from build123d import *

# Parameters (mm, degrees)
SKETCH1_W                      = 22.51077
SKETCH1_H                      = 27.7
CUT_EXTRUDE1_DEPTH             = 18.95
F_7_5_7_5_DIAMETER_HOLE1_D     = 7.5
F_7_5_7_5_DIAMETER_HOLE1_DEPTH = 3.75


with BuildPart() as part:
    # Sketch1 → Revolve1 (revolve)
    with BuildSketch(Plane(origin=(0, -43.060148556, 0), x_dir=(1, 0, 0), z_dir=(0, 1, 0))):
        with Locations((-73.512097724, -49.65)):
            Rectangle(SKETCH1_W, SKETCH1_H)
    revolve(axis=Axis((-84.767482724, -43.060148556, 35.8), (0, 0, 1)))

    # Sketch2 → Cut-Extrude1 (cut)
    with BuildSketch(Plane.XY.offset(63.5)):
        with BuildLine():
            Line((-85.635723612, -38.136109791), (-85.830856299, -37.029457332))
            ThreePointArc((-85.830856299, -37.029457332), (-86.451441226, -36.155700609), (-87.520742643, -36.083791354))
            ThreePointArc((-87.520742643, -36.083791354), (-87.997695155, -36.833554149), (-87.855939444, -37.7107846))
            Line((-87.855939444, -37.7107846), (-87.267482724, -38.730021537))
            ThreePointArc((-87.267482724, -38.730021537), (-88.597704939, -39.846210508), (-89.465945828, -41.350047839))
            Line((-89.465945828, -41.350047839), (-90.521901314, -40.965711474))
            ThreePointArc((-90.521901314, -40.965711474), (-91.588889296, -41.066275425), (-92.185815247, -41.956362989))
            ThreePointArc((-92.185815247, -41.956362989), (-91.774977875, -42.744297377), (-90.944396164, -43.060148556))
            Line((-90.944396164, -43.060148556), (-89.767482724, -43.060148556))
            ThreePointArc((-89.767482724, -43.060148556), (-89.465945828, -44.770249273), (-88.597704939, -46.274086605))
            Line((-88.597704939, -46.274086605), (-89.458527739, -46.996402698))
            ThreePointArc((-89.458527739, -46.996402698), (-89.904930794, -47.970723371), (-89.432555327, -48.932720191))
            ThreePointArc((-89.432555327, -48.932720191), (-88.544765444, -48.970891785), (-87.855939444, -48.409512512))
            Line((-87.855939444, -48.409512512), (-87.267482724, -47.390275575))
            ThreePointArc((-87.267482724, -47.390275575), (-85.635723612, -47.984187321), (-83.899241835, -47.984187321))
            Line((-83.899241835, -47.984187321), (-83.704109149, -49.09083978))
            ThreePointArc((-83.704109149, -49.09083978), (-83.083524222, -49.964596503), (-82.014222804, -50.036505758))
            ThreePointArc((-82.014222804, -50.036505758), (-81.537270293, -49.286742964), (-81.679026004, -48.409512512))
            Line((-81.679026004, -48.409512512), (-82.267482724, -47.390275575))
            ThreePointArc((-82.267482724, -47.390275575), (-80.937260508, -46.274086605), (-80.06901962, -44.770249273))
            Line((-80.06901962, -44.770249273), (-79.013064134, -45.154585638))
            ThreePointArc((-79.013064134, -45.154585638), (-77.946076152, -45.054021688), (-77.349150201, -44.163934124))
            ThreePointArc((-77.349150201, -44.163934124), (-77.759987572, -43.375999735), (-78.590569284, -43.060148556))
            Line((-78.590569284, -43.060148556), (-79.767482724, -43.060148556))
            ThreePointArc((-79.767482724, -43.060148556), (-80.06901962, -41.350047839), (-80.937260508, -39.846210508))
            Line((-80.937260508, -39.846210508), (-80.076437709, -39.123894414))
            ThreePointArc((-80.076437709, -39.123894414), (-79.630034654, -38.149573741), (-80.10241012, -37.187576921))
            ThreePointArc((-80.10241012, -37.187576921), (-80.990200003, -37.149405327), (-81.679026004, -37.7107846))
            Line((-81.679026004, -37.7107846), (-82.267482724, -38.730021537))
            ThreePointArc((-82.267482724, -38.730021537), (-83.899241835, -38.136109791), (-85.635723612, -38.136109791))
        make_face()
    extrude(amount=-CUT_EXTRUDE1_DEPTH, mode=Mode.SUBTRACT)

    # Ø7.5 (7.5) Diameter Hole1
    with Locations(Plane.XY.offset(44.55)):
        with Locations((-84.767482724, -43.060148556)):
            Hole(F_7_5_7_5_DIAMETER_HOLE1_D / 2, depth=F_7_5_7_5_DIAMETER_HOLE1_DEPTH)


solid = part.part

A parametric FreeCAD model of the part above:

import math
import FreeCAD as App
import Part
import Sketcher


def add_polygon(sketch, points):
    """Adds a closed chain of lines whose ends are joined by coincident constraints."""
    first, n = sketch.GeometryCount, len(points)
    for a, b in zip(points, points[1:] + points[:1]):
        sketch.addGeometry(Part.LineSegment(App.Vector(*a, 0), App.Vector(*b, 0)), False)
    for i in range(n):
        sketch.addConstraint(Sketcher.Constraint("Coincident", first + i, 2, first + (i + 1) % n, 1))

doc = App.newDocument("Part")
body = doc.addObject("PartDesign::Body", "Body")

# Sketch on XZ plane
sketch1 = doc.addObject("Sketcher::SketchObject", "Sketch")
body.addObject(sketch1)
sketch1.AttachmentSupport = (doc.XZ_Plane, [""])
sketch1.MapMode = "FlatFace"
sketch1.AttachmentOffset = App.Placement(App.Vector(0, 0, 43.060149), App.Rotation())
add_polygon(sketch1, [(-85, 36), (-85, 64), (-62, 64), (-62, 36)])  # lines 0-3
sketch1.addGeometry(Part.LineSegment(App.Vector(-85, 36, 0), App.Vector(-85, 64, 0)), True)  # axis
sketch1.addConstraint([
    Sketcher.Constraint("Vertical", 0),
    Sketcher.Constraint("Horizontal", 1),
    Sketcher.Constraint("Vertical", 2),
    Sketcher.Constraint("Horizontal", 3),
    Sketcher.Constraint("Vertical", 4),
    Sketcher.Constraint("Coincident", 4, 1, 3, 2),
    Sketcher.Constraint("Horizontal", 1, 2, 4, 2),
    Sketcher.Constraint("DistanceY", 0, 1, 0, 2, 27.7),
    Sketcher.Constraint("DistanceY", -1, 1, 0, 2, 63.5),
    Sketcher.Constraint("DistanceX", 1, 1, 1, 2, 22.51077),
    Sketcher.Constraint("DistanceX", 0, 2, -1, 1, 84.767483),
])
revolution = doc.addObject("PartDesign::Revolution", "Revolution")
body.addObject(revolution)
revolution.Profile = sketch1
revolution.ReferenceAxis = (sketch1, ["Axis0"])
revolution.Angle = 360

# Sketch on XY plane
sketch2 = doc.addObject("Sketcher::SketchObject", "Sketch001")
body.addObject(sketch2)
sketch2.AttachmentSupport = (doc.XY_Plane, [""])
sketch2.MapMode = "FlatFace"
sketch2.AttachmentOffset = App.Placement(App.Vector(0, 0, 63.5), App.Rotation())
sketch2.addGeometry([
    Part.LineSegment(App.Vector(-85.635724, -38.13611, 0), App.Vector(-85.830856, -37.029457, 0)),  # 0
    Part.ArcOfCircle(Part.Circle(App.Vector(-87.061866, -37.246518, 0), App.Vector(0, 0, 1), 1.25), math.radians(10), math.radians(111.536959)),  # 1
    Part.ArcOfCircle(Part.Circle(App.Vector(-86.773408, -37.085785, 0), App.Vector(0, 0, 1), 1.25), math.radians(126.717354), math.radians(210)),  # 2
    Part.LineSegment(App.Vector(-87.855939, -37.710785, 0), App.Vector(-87.267483, -38.730022, 0)),  # 3
    Part.ArcOfCircle(Part.Circle(App.Vector(-84.767483, -43.060149, 0), App.Vector(0, 0, 1), 5), math.radians(120), math.radians(160)),  # 4
    Part.LineSegment(App.Vector(-89.465946, -41.350048, 0), App.Vector(-90.521901, -40.965711, 0)),  # 5
    Part.ArcOfCircle(Part.Circle(App.Vector(-90.949426, -42.140327, 0), App.Vector(0, 0, 1), 1.25), math.radians(70), math.radians(171.536959)),  # 6
    Part.ArcOfCircle(Part.Circle(App.Vector(-90.944396, -41.810149, 0), App.Vector(0, 0, 1), 1.25), math.radians(-173.282646), math.radians(-90)),  # 7
    Part.LineSegment(App.Vector(-90.944396, -43.060149, 0), App.Vector(-89.767483, -43.060149, 0)),  # 8
    Part.ArcOfCircle(Part.Circle(App.Vector(-84.767483, -43.060149, 0), App.Vector(0, 0, 1), 5), math.radians(180), math.radians(220)),  # 9
    Part.LineSegment(App.Vector(-88.597705, -46.274087, 0), App.Vector(-89.458528, -46.996403, 0)),  # 10
    Part.ArcOfCircle(Part.Circle(App.Vector(-88.655043, -47.953958, 0), App.Vector(0, 0, 1), 1.25), math.radians(130), math.radians(231.536959)),  # 11
    Part.ArcOfCircle(Part.Circle(App.Vector(-88.938471, -47.784513, 0), App.Vector(0, 0, 1), 1.25), math.radians(-113.282646), math.radians(-30)),  # 12
    Part.LineSegment(App.Vector(-87.855939, -48.409513, 0), App.Vector(-87.267483, -47.390276, 0)),  # 13
    Part.ArcOfCircle(Part.Circle(App.Vector(-84.767483, -43.060149, 0), App.Vector(0, 0, 1), 5), math.radians(-120), math.radians(-80)),  # 14
    Part.LineSegment(App.Vector(-83.899242, -47.984187, 0), App.Vector(-83.704109, -49.09084, 0)),  # 15
    Part.ArcOfCircle(Part.Circle(App.Vector(-82.473099, -48.87378, 0), App.Vector(0, 0, 1), 1.25), math.radians(-170), math.radians(-68.463041)),  # 16
    Part.ArcOfCircle(Part.Circle(App.Vector(-82.761558, -49.034513, 0), App.Vector(0, 0, 1), 1.25), math.radians(-53.282646), math.radians(30)),  # 17
    Part.LineSegment(App.Vector(-81.679026, -48.409513, 0), App.Vector(-82.267483, -47.390276, 0)),  # 18
    Part.ArcOfCircle(Part.Circle(App.Vector(-84.767483, -43.060149, 0), App.Vector(0, 0, 1), 5), math.radians(-60), math.radians(-20)),  # 19
    Part.LineSegment(App.Vector(-80.06902, -44.770249, 0), App.Vector(-79.013064, -45.154586, 0)),  # 20
    Part.ArcOfCircle(Part.Circle(App.Vector(-78.585539, -43.97997, 0), App.Vector(0, 0, 1), 1.25), math.radians(-110), math.radians(-8.463041)),  # 21
    Part.ArcOfCircle(Part.Circle(App.Vector(-78.590569, -44.310149, 0), App.Vector(0, 0, 1), 1.25), math.radians(6.717354), math.radians(90)),  # 22
    Part.LineSegment(App.Vector(-78.590569, -43.060149, 0), App.Vector(-79.767483, -43.060149, 0)),  # 23
    Part.ArcOfCircle(Part.Circle(App.Vector(-84.767483, -43.060149, 0), App.Vector(0, 0, 1), 5), math.radians(0), math.radians(40)),  # 24
    Part.LineSegment(App.Vector(-80.937261, -39.846211, 0), App.Vector(-80.076438, -39.123894, 0)),  # 25
    Part.ArcOfCircle(Part.Circle(App.Vector(-80.879922, -38.166339, 0), App.Vector(0, 0, 1), 1.25), math.radians(-50), math.radians(51.536959)),  # 26
    Part.ArcOfCircle(Part.Circle(App.Vector(-80.596494, -38.335785, 0), App.Vector(0, 0, 1), 1.25), math.radians(66.717354), math.radians(150)),  # 27
    Part.LineSegment(App.Vector(-81.679026, -37.710785, 0), App.Vector(-82.267483, -38.730022, 0)),  # 28
    Part.ArcOfCircle(Part.Circle(App.Vector(-84.767483, -43.060149, 0), App.Vector(0, 0, 1), 5), math.radians(60), math.radians(100)),  # 29
], False)
sketch2.addConstraint([
    Sketcher.Constraint("Coincident", 0, 2, 1, 1),
    Sketcher.Constraint("Coincident", 1, 2, 2, 1),
    Sketcher.Constraint("Coincident", 2, 2, 3, 1),
    Sketcher.Constraint("Coincident", 3, 2, 4, 1),
    Sketcher.Constraint("Coincident", 4, 2, 5, 1),
    Sketcher.Constraint("Coincident", 5, 2, 6, 1),
    Sketcher.Constraint("Coincident", 6, 2, 7, 1),
    Sketcher.Constraint("Coincident", 7, 2, 8, 1),
    Sketcher.Constraint("Coincident", 8, 2, 9, 1),
    Sketcher.Constraint("Coincident", 9, 2, 10, 1),
    Sketcher.Constraint("Coincident", 10, 2, 11, 1),
    Sketcher.Constraint("Coincident", 11, 2, 12, 1),
    Sketcher.Constraint("Coincident", 12, 2, 13, 1),
    Sketcher.Constraint("Coincident", 13, 2, 14, 1),
    Sketcher.Constraint("Coincident", 14, 2, 15, 1),
    Sketcher.Constraint("Coincident", 15, 2, 16, 1),
    Sketcher.Constraint("Coincident", 16, 2, 17, 1),
    Sketcher.Constraint("Coincident", 17, 2, 18, 1),
    Sketcher.Constraint("Coincident", 18, 2, 19, 1),
    Sketcher.Constraint("Coincident", 19, 2, 20, 1),
    Sketcher.Constraint("Coincident", 20, 2, 21, 1),
    Sketcher.Constraint("Coincident", 21, 2, 22, 1),
    Sketcher.Constraint("Coincident", 22, 2, 23, 1),
    Sketcher.Constraint("Coincident", 23, 2, 24, 1),
    Sketcher.Constraint("Coincident", 24, 2, 25, 1),
    Sketcher.Constraint("Coincident", 25, 2, 26, 1),
    Sketcher.Constraint("Coincident", 26, 2, 27, 1),
    Sketcher.Constraint("Coincident", 27, 2, 28, 1),
    Sketcher.Constraint("Coincident", 28, 2, 29, 1),
    Sketcher.Constraint("Coincident", 29, 2, 0, 1),
    Sketcher.Constraint("Horizontal", 8),
    Sketcher.Constraint("Horizontal", 23),
    Sketcher.Constraint("Coincident", 9, 3, 4, 3),
    Sketcher.Constraint("Coincident", 14, 3, 4, 3),
    Sketcher.Constraint("Coincident", 19, 3, 4, 3),
    Sketcher.Constraint("Coincident", 24, 3, 4, 3),
    Sketcher.Constraint("Coincident", 29, 3, 4, 3),
    Sketcher.Constraint("Radius", 4, 5.0),
    Sketcher.Constraint("Radius", 9, 5.0),
    Sketcher.Constraint("Radius", 14, 5.0),
    Sketcher.Constraint("Radius", 19, 5.0),
    Sketcher.Constraint("Radius", 24, 5.0),
    Sketcher.Constraint("Radius", 29, 5.0),
    Sketcher.Constraint("Radius", 1, 1.25),
    Sketcher.Constraint("Radius", 2, 1.25),
    Sketcher.Constraint("Radius", 6, 1.25),
    Sketcher.Constraint("Radius", 7, 1.25),
    Sketcher.Constraint("Radius", 11, 1.25),
    Sketcher.Constraint("Radius", 12, 1.25),
    Sketcher.Constraint("Radius", 16, 1.25),
    Sketcher.Constraint("Radius", 17, 1.25),
    Sketcher.Constraint("Radius", 21, 1.25),
    Sketcher.Constraint("Radius", 22, 1.25),
    Sketcher.Constraint("Radius", 26, 1.25),
    Sketcher.Constraint("Radius", 27, 1.25),
    Sketcher.Constraint("DistanceY", 4, 3, 7, 3, 1.25),
    Sketcher.Constraint("DistanceY", 17, 3, 12, 3, 1.25),
    Sketcher.Constraint("DistanceY", 22, 3, 4, 3, 1.25),
    Sketcher.Constraint("DistanceY", 2, 2, 2, 3, 0.625),
    Sketcher.Constraint("DistanceY", 12, 2, 12, 3, 0.625),
    Sketcher.Constraint("DistanceY", 17, 3, 17, 2, 0.625),
    Sketcher.Constraint("DistanceY", 27, 3, 27, 2, 0.625),
    Sketcher.Constraint("DistanceX", 16, 3, -1, 1, 82.473099),
    Sketcher.Constraint("DistanceX", 5, 2, -1, 1, 90.521901),
    Sketcher.Constraint("DistanceY", 7, 3, 4, 2, 0.460101),
    Sketcher.Constraint("DistanceX", 11, 3, 14, 2, 4.755801),
    Sketcher.Constraint("DistanceY", 19, 2, 22, 3, 0.460101),
    Sketcher.Constraint("DistanceX", 8, 1, 8, 2, 1.176913),
    Sketcher.Constraint("DistanceX", 23, 2, 23, 1, 1.176913),
    Sketcher.Constraint("DistanceY", 4, 3, -1, 1, 43.060149),
    Sketcher.Constraint("DistanceY", 11, 3, -1, 1, 47.953958),
    Sketcher.Constraint("DistanceX", 12, 3, -1, 1, 88.938471),
    Sketcher.Constraint("DistanceY", 16, 3, -1, 1, 48.87378),
    Sketcher.Constraint("DistanceX", 21, 3, -1, 1, 78.585539),
    Sketcher.Constraint("DistanceY", 21, 3, -1, 1, 43.97997),
    Sketcher.Constraint("DistanceX", 22, 3, -1, 1, 78.590569),
    Sketcher.Constraint("DistanceY", 26, 3, -1, 1, 38.166339),
    Sketcher.Constraint("DistanceY", 1, 2, -1, 1, 36.083791),
    Sketcher.Constraint("DistanceX", 2, 2, -1, 1, 87.855939),
    Sketcher.Constraint("DistanceY", 3, 2, -1, 1, 38.730022),
    Sketcher.Constraint("DistanceY", 5, 2, -1, 1, 40.965711),
    Sketcher.Constraint("DistanceY", 11, 2, -1, 1, 48.93272),
    Sketcher.Constraint("DistanceX", 14, 2, -1, 1, 83.899242),
    Sketcher.Constraint("DistanceX", 15, 2, -1, 1, 83.704109),
    Sketcher.Constraint("DistanceX", 19, 2, -1, 1, 80.06902),
    Sketcher.Constraint("DistanceX", 24, 2, -1, 1, 80.937261),
    Sketcher.Constraint("DistanceX", 26, 2, -1, 1, 80.10241),
    Sketcher.Constraint("DistanceY", 28, 2, -1, 1, 38.730022),
    Sketcher.Constraint("DistanceY", 29, 2, -1, 1, 38.13611),
    Sketcher.Constraint("DistanceX", 1, 3, 2, 3, 0.288458),
    Sketcher.Constraint("DistanceY", 4, 3, 1, 3, 5.813631),
    Sketcher.Constraint("DistanceX", 6, 3, 1, 3, 3.887561),
    Sketcher.Constraint("DistanceX", 6, 3, 7, 3, 0.00503),
    Sketcher.Constraint("DistanceX", 17, 3, 16, 3, 0.288458),
    Sketcher.Constraint("DistanceX", 14, 3, 26, 3, 3.887561),
    Sketcher.Constraint("DistanceX", 14, 3, 27, 3, 4.170988),
    Sketcher.Constraint("DistanceX", 2, 3, 0, 2, 0.942551),
    Sketcher.Constraint("DistanceX", 11, 3, 9, 2, 0.057338),
    Sketcher.Constraint("DistanceY", 12, 3, 10, 2, 0.78811),
    Sketcher.Constraint("DistanceX", 11, 3, 13, 2, 1.387561),
    Sketcher.Constraint("DistanceX", 14, 2, 18, 2, 1.631759),
    Sketcher.Constraint("DistanceX", 18, 2, 20, 2, 3.254419),
    Sketcher.Constraint("DistanceY", 25, 2, 27, 3, 0.78811),
])
pocket1 = doc.addObject("PartDesign::Pocket", "Pocket")
body.addObject(pocket1)
pocket1.Profile = sketch2
pocket1.Length = 18.95

# Sketch on XY plane
sketch3 = doc.addObject("Sketcher::SketchObject", "Sketch002")
body.addObject(sketch3)
sketch3.AttachmentSupport = (doc.XY_Plane, [""])
sketch3.MapMode = "FlatFace"
sketch3.AttachmentOffset = App.Placement(App.Vector(0, 0, 44.55), App.Rotation())
sketch3.addGeometry(Part.Circle(App.Vector(-84.8, -43.1, 0), App.Vector(0, 0, 1), 3.8), False)
sketch3.addConstraint([
    Sketcher.Constraint("Diameter", 0, 7.5),
    Sketcher.Constraint("DistanceY", 0, 3, -1, 1, 43.060149),
    Sketcher.Constraint("DistanceX", 0, 3, -1, 1, 84.767483),
])
doc.recompute()
hole = doc.addObject("PartDesign::Hole", "Hole")
body.addObject(hole)
hole.Profile = sketch3
hole.ThreadType = "None"
hole.Diameter = 7.5
hole.DepthType = "Dimension"
hole.Depth = 3.75
hole.DrillPoint = "Flat"

doc.recompute()
